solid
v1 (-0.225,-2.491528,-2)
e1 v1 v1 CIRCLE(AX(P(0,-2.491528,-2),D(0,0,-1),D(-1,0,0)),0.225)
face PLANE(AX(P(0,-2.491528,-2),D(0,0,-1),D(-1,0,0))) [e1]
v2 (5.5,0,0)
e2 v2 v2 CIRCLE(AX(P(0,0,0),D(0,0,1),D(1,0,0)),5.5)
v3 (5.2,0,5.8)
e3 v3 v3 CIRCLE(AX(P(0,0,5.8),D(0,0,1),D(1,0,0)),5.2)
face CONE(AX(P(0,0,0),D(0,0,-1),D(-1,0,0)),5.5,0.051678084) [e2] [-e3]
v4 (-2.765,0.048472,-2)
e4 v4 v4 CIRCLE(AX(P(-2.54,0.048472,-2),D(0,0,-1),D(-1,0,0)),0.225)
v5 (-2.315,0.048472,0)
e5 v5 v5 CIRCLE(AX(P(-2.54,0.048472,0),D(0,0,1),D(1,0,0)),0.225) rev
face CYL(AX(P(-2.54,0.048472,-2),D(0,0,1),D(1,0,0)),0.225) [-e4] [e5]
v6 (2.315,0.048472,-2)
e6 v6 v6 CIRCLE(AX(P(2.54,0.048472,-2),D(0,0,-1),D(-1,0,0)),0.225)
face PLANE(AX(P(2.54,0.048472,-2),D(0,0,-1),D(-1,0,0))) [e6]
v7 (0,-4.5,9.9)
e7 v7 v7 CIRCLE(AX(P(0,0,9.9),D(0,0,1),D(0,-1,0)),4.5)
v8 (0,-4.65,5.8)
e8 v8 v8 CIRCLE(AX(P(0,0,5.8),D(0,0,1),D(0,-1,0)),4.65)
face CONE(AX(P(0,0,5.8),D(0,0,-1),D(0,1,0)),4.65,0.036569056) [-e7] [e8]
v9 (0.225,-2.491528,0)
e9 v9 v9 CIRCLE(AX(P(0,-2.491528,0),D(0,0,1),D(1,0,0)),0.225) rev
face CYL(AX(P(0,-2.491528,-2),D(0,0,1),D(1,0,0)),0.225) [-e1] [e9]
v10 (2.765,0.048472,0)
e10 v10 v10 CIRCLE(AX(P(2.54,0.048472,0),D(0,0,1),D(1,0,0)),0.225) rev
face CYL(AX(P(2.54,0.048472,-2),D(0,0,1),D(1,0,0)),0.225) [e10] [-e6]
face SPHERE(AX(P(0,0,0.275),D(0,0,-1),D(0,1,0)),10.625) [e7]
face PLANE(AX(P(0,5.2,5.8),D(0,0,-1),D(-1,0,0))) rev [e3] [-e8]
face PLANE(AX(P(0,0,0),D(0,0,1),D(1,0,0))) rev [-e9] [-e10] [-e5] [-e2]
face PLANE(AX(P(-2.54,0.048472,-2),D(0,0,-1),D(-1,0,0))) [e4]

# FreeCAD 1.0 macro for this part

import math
import FreeCAD as App
import Part
import Sketcher
Q = App.Units.Quantity

doc = App.newDocument("Part")
params = doc.addObject("Spreadsheet::Sheet", "Params")
for row, (alias, value) in enumerate([
    ("sketch1_width", "5.5 mm"),
    ("sketch1_width2", "5.2 mm"),
    ("sketch1_height", "5.8 mm"),
    ("revolution_angle", "360 deg"),
    ("sketch2_width", "4.5 mm"),
    ("sketch2_height", "4.1 mm"),
    ("sketch2_width2", "4.65 mm"),
    ("revolution2_angle", "360 deg"),
    ("sketch3_height", "1 mm"),
    ("sketch3_width", "4.5 mm"),
    ("revolution3_angle", "360 deg"),
    ("sketch4_diameter", "0.45 mm"),
    ("pad1_length", "2 mm"),
], start=1):
    params.set(f"A{row}", alias)
    params.set(f"B{row}", "=" + value)
    params.setAlias(f"B{row}", alias)

body = doc.addObject("PartDesign::Body", "Body")

# Sketch on YZ plane
sketch1 = body.newObject("Sketcher::SketchObject", "Sketch")
sketch1.AttachmentSupport = (doc.getObject("YZ_Plane"), [""])
sketch1.MapMode = "FlatFace"
sketch1.addGeometry(Part.LineSegment(App.Vector(0, 0, 0), App.Vector(6, 0, 0)), False)
sketch1.addGeometry(Part.LineSegment(App.Vector(6, 0, 0), App.Vector(5, 6, 0)), False)
sketch1.addGeometry(Part.LineSegment(App.Vector(5, 6, 0), App.Vector(0, 6, 0)), False)
sketch1.addGeometry(Part.LineSegment(App.Vector(0, 6, 0), App.Vector(0, 0, 0)), False)
sketch1.addConstraint(Sketcher.Constraint("Coincident", 0, 2, 1, 1))
sketch1.addConstraint(Sketcher.Constraint("Coincident", 1, 2, 2, 1))
sketch1.addConstraint(Sketcher.Constraint("Coincident", 2, 2, 3, 1))
sketch1.addConstraint(Sketcher.Constraint("Coincident", 3, 2, 0, 1))
sketch1.addConstraint(Sketcher.Constraint("Horizontal", 0))
sketch1.addConstraint(Sketcher.Constraint("Horizontal", 2))
sketch1.addConstraint(Sketcher.Constraint("Vertical", 3))
sketch1.addConstraint(Sketcher.Constraint("Coincident", 3, 2, -1, 1))
sketch1.addConstraint(Sketcher.Constraint("DistanceX", 0, 1, 0, 2, Q("5.5 mm")))
sketch1.addConstraint(Sketcher.Constraint("DistanceX", 2, 2, 2, 1, Q("5.2 mm")))
sketch1.addConstraint(Sketcher.Constraint("DistanceY", 3, 2, 3, 1, Q("5.8 mm")))
sketch1.setExpression("Constraints[8]", "Params.sketch1_width")
sketch1.setExpression("Constraints[9]", "Params.sketch1_width2")
sketch1.setExpression("Constraints[10]", "Params.sketch1_height")
revolution = body.newObject("PartDesign::Revolution", "Revolution")
revolution.Profile = sketch1
revolution.ReferenceAxis = (sketch1, ["V_Axis"])
revolution.setExpression("Angle", "Params.revolution_angle")

# Sketch on YZ plane
sketch2 = body.newObject("Sketcher::SketchObject", "Sketch001")
sketch2.AttachmentSupport = (doc.getObject("YZ_Plane"), [""])
sketch2.MapMode = "FlatFace"
sketch2.addGeometry(Part.LineSegment(App.Vector(4.7, 5.8, 0), App.Vector(4.5, 9.9, 0)), False)
sketch2.addGeometry(Part.LineSegment(App.Vector(4.5, 9.9, 0), App.Vector(0, 9.9, 0)), False)
sketch2.addGeometry(Part.LineSegment(App.Vector(0, 9.9, 0), App.Vector(0, 5.8, 0)), False)
sketch2.addGeometry(Part.LineSegment(App.Vector(0, 5.8, 0), App.Vector(4.7, 5.8, 0)), False)
sketch2.addConstraint(Sketcher.Constraint("Coincident", 0, 2, 1, 1))
sketch2.addConstraint(Sketcher.Constraint("Coincident", 1, 2, 2, 1))
sketch2.addConstraint(Sketcher.Constraint("Coincident", 2, 2, 3, 1))
sketch2.addConstraint(Sketcher.Constraint("Coincident", 3, 2, 0, 1))
sketch2.addConstraint(Sketcher.Constraint("Horizontal", 1))
sketch2.addConstraint(Sketcher.Constraint("Vertical", 2))
sketch2.addConstraint(Sketcher.Constraint("Horizontal", 3))
sketch2.addConstraint(Sketcher.Constraint("PointOnObject", 1, 2, -2))
sketch2.addConstraint(Sketcher.Constraint("DistanceX", 1, 2, 1, 1, Q("4.5 mm")))
sketch2.addConstraint(Sketcher.Constraint("DistanceY", 2, 2, 2, 1, Q("4.1 mm")))
sketch2.addConstraint(Sketcher.Constraint("DistanceX", 3, 1, 3, 2, Q("4.65 mm")))
sketch2.addConstraint(Sketcher.Constraint("DistanceY", -1, 1, 0, 2, Q("9.9 mm")))
sketch2.setExpression("Constraints[8]", "Params.sketch2_width")
sketch2.setExpression("Constraints[9]", "Params.sketch2_height")
sketch2.setExpression("Constraints[10]", "Params.sketch2_width2")
revolution2 = body.newObject("PartDesign::Revolution", "Revolution001")
revolution2.Profile = sketch2
revolution2.ReferenceAxis = (sketch2, ["V_Axis"])
revolution2.setExpression("Angle", "Params.revolution2_angle")

# Sketch on YZ plane
sketch3 = body.newObject("Sketcher::SketchObject", "Sketch002")
sketch3.AttachmentSupport = (doc.getObject("YZ_Plane"), [""])
sketch3.MapMode = "FlatFace"
sketch3.addGeometry(Part.LineSegment(App.Vector(0, 10.9, 0), App.Vector(0, 9.9, 0)), False)
sketch3.addGeometry(Part.LineSegment(App.Vector(0, 9.9, 0), App.Vector(4.5, 9.9, 0)), False)
sketch3.addGeometry(Part.ArcOfCircle(Part.Circle(App.Vector(0, 0.3, 0), App.Vector(0, 0, 1), 10.6), math.radians(65), math.radians(90)), False)
sketch3.addConstraint(Sketcher.Constraint("Coincident", 0, 2, 1, 1))
sketch3.addConstraint(Sketcher.Constraint("Coincident", 1, 2, 2, 1))
sketch3.addConstraint(Sketcher.Constraint("Coincident", 2, 2, 0, 1))
sketch3.addConstraint(Sketcher.Constraint("Vertical", 0))
sketch3.addConstraint(Sketcher.Constraint("Horizontal", 1))
sketch3.addConstraint(Sketcher.Constraint("PointOnObject", 2, 3, -2))
sketch3.addConstraint(Sketcher.Constraint("PointOnObject", 0, 2, -2))
sketch3.addConstraint(Sketcher.Constraint("DistanceY", 0, 2, 0, 1, Q("1 mm")))
sketch3.addConstraint(Sketcher.Constraint("DistanceX", 1, 1, 1, 2, Q("4.5 mm")))
sketch3.addConstraint(Sketcher.Constraint("DistanceY", -1, 1, 0, 2, Q("9.9 mm")))
sketch3.setExpression("Constraints[7]", "Params.sketch3_height")
sketch3.setExpression("Constraints[8]", "Params.sketch3_width")
revolution3 = body.newObject("PartDesign::Revolution", "Revolution002")
revolution3.Profile = sketch3
revolution3.ReferenceAxis = (sketch3, ["V_Axis"])
revolution3.setExpression("Angle", "Params.revolution3_angle")

# Sketch on XY plane
sketch4 = body.newObject("Sketcher::SketchObject", "Sketch003")
sketch4.AttachmentSupport = (doc.getObject("XY_Plane"), [""])
sketch4.MapMode = "FlatFace"
sketch4.addGeometry(Part.Circle(App.Vector(-2.54, 0.05, 0), App.Vector(0, 0, 1), 0.23), False)
sketch4.addGeometry(Part.Circle(App.Vector(0, -2.49, 0), App.Vector(0, 0, 1), 0.23), False)
sketch4.addGeometry(Part.Circle(App.Vector(2.54, 0.05, 0), App.Vector(0, 0, 1), 0.23), False)
sketch4.addConstraint(Sketcher.Constraint("Equal", 0, 1))
sketch4.addConstraint(Sketcher.Constraint("Equal", 1, 2))
sketch4.addConstraint(Sketcher.Constraint("Symmetric", 0, 3, 2, 3, -2))
sketch4.addConstraint(Sketcher.Constraint("PointOnObject", 1, 3, -2))
sketch4.addConstraint(Sketcher.Constraint("Diameter", 0, Q("0.45 mm")))
sketch4.addConstraint(Sketcher.Constraint("DistanceX", 0, 3, -1, 1, Q("2.54 mm")))
sketch4.addConstraint(Sketcher.Constraint("DistanceY", 1, 3, 0, 3, Q("2.54 mm")))
sketch4.addConstraint(Sketcher.Constraint("DistanceY", -1, 1, 0, 3, Q("0.048472 mm")))
sketch4.setExpression("Constraints[4]", "Params.sketch4_diameter")
pad1 = body.newObject("PartDesign::Pad", "Pad")
pad1.Profile = sketch4
pad1.setExpression("Length", "Params.pad1_length")
pad1.Reversed = True

doc.recompute()
